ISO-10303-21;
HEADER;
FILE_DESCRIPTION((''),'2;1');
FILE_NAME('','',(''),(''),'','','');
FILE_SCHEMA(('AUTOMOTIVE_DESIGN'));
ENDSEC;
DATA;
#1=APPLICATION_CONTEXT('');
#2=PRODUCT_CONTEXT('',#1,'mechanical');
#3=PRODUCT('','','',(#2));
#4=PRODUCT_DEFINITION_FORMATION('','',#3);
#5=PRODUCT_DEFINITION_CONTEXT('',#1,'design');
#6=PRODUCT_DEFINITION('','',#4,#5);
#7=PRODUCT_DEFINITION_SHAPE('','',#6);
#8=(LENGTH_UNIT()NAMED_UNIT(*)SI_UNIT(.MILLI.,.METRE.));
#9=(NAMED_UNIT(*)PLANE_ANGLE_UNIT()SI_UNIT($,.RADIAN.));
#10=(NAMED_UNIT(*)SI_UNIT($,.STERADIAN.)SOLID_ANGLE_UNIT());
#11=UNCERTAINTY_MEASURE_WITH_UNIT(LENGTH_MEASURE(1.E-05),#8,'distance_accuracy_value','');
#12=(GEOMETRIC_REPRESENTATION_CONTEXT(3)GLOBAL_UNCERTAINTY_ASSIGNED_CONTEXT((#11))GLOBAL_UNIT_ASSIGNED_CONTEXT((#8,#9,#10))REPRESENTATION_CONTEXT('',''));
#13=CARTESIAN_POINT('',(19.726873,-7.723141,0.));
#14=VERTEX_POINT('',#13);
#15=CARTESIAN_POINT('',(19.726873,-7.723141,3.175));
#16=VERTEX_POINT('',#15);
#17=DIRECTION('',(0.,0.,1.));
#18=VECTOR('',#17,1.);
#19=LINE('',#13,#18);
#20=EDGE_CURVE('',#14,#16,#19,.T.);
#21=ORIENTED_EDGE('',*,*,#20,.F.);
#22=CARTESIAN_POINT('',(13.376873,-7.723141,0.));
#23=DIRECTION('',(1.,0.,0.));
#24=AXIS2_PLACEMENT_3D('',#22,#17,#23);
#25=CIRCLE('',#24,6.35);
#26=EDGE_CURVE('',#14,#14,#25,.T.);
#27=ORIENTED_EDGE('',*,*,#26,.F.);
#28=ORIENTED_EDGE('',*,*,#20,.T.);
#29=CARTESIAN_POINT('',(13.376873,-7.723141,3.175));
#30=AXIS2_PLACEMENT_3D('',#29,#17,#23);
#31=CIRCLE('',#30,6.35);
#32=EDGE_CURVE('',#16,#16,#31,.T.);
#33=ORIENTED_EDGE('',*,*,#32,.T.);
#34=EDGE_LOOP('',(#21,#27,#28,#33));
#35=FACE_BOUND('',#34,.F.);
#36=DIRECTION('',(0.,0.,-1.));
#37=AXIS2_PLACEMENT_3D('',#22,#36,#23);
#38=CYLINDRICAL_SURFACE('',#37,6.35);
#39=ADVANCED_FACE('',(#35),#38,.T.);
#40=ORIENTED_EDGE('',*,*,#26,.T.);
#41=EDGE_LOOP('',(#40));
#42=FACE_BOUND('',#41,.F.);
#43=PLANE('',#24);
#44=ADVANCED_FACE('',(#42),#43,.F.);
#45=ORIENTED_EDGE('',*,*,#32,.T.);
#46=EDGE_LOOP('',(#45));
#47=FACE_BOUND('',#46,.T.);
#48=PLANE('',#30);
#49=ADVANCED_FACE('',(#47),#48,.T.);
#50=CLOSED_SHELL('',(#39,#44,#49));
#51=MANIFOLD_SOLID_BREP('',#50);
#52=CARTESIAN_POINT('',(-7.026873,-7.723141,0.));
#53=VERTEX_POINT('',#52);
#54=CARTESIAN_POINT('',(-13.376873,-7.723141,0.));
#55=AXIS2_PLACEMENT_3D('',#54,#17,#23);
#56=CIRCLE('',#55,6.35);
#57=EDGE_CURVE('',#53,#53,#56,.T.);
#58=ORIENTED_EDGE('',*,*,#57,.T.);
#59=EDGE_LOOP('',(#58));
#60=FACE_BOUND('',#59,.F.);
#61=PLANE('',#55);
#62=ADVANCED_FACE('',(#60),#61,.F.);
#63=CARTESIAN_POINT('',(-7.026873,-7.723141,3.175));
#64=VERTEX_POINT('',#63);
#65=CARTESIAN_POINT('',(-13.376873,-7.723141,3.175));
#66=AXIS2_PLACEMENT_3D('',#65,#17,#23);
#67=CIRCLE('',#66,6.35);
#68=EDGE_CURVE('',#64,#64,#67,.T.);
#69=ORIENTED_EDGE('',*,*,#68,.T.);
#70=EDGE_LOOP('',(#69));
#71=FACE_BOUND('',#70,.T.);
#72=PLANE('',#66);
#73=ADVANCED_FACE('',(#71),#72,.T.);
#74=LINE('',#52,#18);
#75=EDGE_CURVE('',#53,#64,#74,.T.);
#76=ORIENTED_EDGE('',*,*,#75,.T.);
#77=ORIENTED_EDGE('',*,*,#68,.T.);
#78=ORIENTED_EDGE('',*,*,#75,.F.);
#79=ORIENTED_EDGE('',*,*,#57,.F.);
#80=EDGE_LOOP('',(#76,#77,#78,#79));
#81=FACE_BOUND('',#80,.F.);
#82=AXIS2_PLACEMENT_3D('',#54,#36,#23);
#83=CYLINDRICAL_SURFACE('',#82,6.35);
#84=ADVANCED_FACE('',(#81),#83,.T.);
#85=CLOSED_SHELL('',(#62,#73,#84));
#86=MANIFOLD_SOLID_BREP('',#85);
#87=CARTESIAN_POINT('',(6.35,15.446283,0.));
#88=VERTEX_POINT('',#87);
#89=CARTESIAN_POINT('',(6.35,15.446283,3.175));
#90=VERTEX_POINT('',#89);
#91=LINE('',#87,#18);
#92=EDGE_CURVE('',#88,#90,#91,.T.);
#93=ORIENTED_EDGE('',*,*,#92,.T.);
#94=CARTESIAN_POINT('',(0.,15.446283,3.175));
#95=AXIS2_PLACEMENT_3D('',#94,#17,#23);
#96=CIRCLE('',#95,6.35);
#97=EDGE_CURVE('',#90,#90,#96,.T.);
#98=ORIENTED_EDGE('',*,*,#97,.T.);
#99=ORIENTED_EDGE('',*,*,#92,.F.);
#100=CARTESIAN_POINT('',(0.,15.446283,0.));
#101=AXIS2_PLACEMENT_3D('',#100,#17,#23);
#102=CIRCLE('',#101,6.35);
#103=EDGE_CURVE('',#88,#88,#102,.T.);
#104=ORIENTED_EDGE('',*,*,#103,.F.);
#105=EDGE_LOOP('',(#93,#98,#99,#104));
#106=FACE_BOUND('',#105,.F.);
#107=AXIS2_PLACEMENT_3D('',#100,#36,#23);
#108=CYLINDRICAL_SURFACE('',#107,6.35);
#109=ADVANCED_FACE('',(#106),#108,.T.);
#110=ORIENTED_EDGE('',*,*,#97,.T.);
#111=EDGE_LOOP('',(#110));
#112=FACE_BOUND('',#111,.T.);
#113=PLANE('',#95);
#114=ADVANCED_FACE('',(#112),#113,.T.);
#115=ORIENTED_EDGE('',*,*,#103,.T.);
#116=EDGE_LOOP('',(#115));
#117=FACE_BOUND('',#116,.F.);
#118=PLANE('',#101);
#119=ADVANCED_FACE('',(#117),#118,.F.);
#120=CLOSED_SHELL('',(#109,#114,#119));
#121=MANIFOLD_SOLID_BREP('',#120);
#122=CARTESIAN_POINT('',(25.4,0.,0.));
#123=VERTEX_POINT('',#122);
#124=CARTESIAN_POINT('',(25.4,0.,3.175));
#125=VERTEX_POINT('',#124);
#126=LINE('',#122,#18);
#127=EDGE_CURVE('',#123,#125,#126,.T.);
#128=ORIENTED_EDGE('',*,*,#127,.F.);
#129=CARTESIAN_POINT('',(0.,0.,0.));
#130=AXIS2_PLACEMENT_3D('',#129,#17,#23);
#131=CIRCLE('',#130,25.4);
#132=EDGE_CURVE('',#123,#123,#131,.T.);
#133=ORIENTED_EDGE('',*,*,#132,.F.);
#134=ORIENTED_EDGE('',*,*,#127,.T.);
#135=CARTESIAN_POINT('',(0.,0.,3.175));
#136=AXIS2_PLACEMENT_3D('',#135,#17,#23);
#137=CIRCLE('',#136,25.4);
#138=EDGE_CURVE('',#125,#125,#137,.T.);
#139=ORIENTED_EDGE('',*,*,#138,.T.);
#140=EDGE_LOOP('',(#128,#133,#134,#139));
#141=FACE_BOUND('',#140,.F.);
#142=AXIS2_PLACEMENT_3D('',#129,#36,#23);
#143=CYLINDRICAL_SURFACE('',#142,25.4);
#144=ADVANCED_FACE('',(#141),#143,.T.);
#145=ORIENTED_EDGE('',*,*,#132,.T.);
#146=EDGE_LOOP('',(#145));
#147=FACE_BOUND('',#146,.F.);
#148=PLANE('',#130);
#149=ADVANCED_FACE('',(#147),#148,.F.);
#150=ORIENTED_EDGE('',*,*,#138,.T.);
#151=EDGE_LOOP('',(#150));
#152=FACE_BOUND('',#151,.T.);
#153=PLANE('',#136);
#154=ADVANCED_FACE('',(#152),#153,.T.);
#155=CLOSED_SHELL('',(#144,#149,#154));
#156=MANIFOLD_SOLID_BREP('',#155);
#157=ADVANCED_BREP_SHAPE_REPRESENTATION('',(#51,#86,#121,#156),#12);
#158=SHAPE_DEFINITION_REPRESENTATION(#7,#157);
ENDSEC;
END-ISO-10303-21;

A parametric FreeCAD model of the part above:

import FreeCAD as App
import Part
import Sketcher

V = App.Vector
Q = App.Units.Quantity

doc = App.newDocument("Part")
body = doc.addObject("PartDesign::Body", "Body")

sketch1 = doc.addObject("Sketcher::SketchObject", "Sketch")
body.addObject(sketch1)
sketch1.AttachmentSupport = (doc.XY_Plane, [""])
sketch1.MapMode = "FlatFace"
sketch1.addGeometry(Part.Circle(V(0, 0, 0), V(0, 0, 1), 25), False)
sketch1.addConstraint([
    Sketcher.Constraint("Coincident", 0, 3, -1, 1),
    Sketcher.Constraint("Diameter", 0, Q("2 in")),
])
pad1 = doc.addObject("PartDesign::Pad", "Pad")
body.addObject(pad1)
pad1.Profile = sketch1
pad1.Length = Q("0.125 in")
body2 = doc.addObject("PartDesign::Body", "Body001")
body2.AllowCompound = True

sketch2 = doc.addObject("Sketcher::SketchObject", "Sketch001")
body2.addObject(sketch2)
sketch2.AttachmentSupport = (doc.getObject("XY_Plane001"), [""])
sketch2.MapMode = "FlatFace"
sketch2.addGeometry([
    Part.Circle(V(0, 15, 0), V(0, 0, 1), 6),
    Part.Circle(V(-13, -8, 0), V(0, 0, 1), 6),
    Part.Circle(V(13, -8, 0), V(0, 0, 1), 6),
], False)
sketch2.addConstraint([
    Sketcher.Constraint("Equal", 0, 1),
    Sketcher.Constraint("Equal", 1, 2),
    Sketcher.Constraint("Symmetric", 1, 3, 2, 3, -2),
    Sketcher.Constraint("PointOnObject", 0, 3, -2),
    Sketcher.Constraint("Diameter", 0, Q("0.5 in")),
    Sketcher.Constraint("DistanceY", 1, 3, -1, 1, Q("7.723141 mm")),
    Sketcher.Constraint("DistanceY", -1, 1, 0, 3, Q("15.446283 mm")),
    Sketcher.Constraint("DistanceX", 1, 3, -1, 1, Q("13.376873 mm")),
])
pad2 = doc.addObject("PartDesign::Pad", "Pad001")
body2.addObject(pad2)
pad2.Profile = sketch2
pad2.Length = Q("0.125 in")

doc.recompute()
